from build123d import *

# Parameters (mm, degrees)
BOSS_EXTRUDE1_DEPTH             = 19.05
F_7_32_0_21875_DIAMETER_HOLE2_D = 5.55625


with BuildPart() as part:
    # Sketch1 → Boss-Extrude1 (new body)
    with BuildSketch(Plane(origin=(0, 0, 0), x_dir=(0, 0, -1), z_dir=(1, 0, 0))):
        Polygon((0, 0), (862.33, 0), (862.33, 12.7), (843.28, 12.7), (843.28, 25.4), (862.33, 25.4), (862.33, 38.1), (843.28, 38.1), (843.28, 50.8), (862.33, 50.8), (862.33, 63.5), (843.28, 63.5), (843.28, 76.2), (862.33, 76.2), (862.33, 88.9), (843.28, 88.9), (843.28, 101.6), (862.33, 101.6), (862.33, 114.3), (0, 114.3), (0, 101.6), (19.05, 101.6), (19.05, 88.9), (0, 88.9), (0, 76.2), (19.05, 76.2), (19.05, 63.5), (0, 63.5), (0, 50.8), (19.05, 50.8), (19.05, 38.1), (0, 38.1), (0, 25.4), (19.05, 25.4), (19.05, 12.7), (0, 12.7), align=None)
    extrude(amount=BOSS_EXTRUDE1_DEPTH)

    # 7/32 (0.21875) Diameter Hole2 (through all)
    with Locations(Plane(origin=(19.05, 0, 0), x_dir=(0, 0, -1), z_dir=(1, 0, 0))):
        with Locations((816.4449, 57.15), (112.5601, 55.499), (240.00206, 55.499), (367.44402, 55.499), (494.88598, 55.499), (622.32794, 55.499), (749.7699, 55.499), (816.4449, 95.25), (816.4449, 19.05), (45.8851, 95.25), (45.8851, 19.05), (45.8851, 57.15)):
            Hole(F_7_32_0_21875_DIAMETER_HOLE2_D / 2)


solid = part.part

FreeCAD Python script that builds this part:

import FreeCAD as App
import Part
import Sketcher
Q = App.Units.Quantity

doc = App.newDocument("Part")
body = doc.addObject("PartDesign::Body", "Body")

sketch1 = body.newObject("Sketcher::SketchObject", "Sketch")
sketch1.AttachmentSupport = (doc.getObject("YZ_Plane"), [""])
sketch1.MapMode = "FlatFace"
sketch1.addGeometry(Part.LineSegment(App.Vector(0, 0, 0), App.Vector(0, -862, 0)), False)
sketch1.addGeometry(Part.LineSegment(App.Vector(0, -862, 0), App.Vector(13, -862, 0)), False)
sketch1.addGeometry(Part.LineSegment(App.Vector(13, -862, 0), App.Vector(13, -843, 0)), False)
sketch1.addGeometry(Part.LineSegment(App.Vector(13, -843, 0), App.Vector(25, -843, 0)), False)
sketch1.addGeometry(Part.LineSegment(App.Vector(25, -843, 0), App.Vector(25, -862, 0)), False)
sketch1.addGeometry(Part.LineSegment(App.Vector(25, -862, 0), App.Vector(38, -862, 0)), False)
sketch1.addGeometry(Part.LineSegment(App.Vector(38, -862, 0), App.Vector(38, -843, 0)), False)
sketch1.addGeometry(Part.LineSegment(App.Vector(38, -843, 0), App.Vector(51, -843, 0)), False)
sketch1.addGeometry(Part.LineSegment(App.Vector(51, -843, 0), App.Vector(51, -862, 0)), False)
sketch1.addGeometry(Part.LineSegment(App.Vector(51, -862, 0), App.Vector(64, -862, 0)), False)
sketch1.addGeometry(Part.LineSegment(App.Vector(64, -862, 0), App.Vector(64, -843, 0)), False)
sketch1.addGeometry(Part.LineSegment(App.Vector(64, -843, 0), App.Vector(76, -843, 0)), False)
sketch1.addGeometry(Part.LineSegment(App.Vector(76, -843, 0), App.Vector(76, -862, 0)), False)
sketch1.addGeometry(Part.LineSegment(App.Vector(76, -862, 0), App.Vector(89, -862, 0)), False)
sketch1.addGeometry(Part.LineSegment(App.Vector(89, -862, 0), App.Vector(89, -843, 0)), False)
sketch1.addGeometry(Part.LineSegment(App.Vector(89, -843, 0), App.Vector(102, -843, 0)), False)
sketch1.addGeometry(Part.LineSegment(App.Vector(102, -843, 0), App.Vector(102, -862, 0)), False)
sketch1.addGeometry(Part.LineSegment(App.Vector(102, -862, 0), App.Vector(114, -862, 0)), False)
sketch1.addGeometry(Part.LineSegment(App.Vector(114, -862, 0), App.Vector(114, 0, 0)), False)
sketch1.addGeometry(Part.LineSegment(App.Vector(114, 0, 0), App.Vector(102, 0, 0)), False)
sketch1.addGeometry(Part.LineSegment(App.Vector(102, 0, 0), App.Vector(102, -19, 0)), False)
sketch1.addGeometry(Part.LineSegment(App.Vector(102, -19, 0), App.Vector(89, -19, 0)), False)
sketch1.addGeometry(Part.LineSegment(App.Vector(89, -19, 0), App.Vector(89, 0, 0)), False)
sketch1.addGeometry(Part.LineSegment(App.Vector(89, 0, 0), App.Vector(76, 0, 0)), False)
sketch1.addGeometry(Part.LineSegment(App.Vector(76, 0, 0), App.Vector(76, -19, 0)), False)
sketch1.addGeometry(Part.LineSegment(App.Vector(76, -19, 0), App.Vector(64, -19, 0)), False)
sketch1.addGeometry(Part.LineSegment(App.Vector(64, -19, 0), App.Vector(64, 0, 0)), False)
sketch1.addGeometry(Part.LineSegment(App.Vector(64, 0, 0), App.Vector(51, 0, 0)), False)
sketch1.addGeometry(Part.LineSegment(App.Vector(51, 0, 0), App.Vector(51, -19, 0)), False)
sketch1.addGeometry(Part.LineSegment(App.Vector(51, -19, 0), App.Vector(38, -19, 0)), False)
sketch1.addGeometry(Part.LineSegment(App.Vector(38, -19, 0), App.Vector(38, 0, 0)), False)
sketch1.addGeometry(Part.LineSegment(App.Vector(38, 0, 0), App.Vector(25, 0, 0)), False)
sketch1.addGeometry(Part.LineSegment(App.Vector(25, 0, 0), App.Vector(25, -19, 0)), False)
sketch1.addGeometry(Part.LineSegment(App.Vector(25, -19, 0), App.Vector(13, -19, 0)), False)
sketch1.addGeometry(Part.LineSegment(App.Vector(13, -19, 0), App.Vector(13, 0, 0)), False)
sketch1.addGeometry(Part.LineSegment(App.Vector(13, 0, 0), App.Vector(0, 0, 0)), False)
sketch1.addConstraint(Sketcher.Constraint("Coincident", 0, 2, 1, 1))
sketch1.addConstraint(Sketcher.Constraint("Coincident", 1, 2, 2, 1))
sketch1.addConstraint(Sketcher.Constraint("Coincident", 2, 2, 3, 1))
sketch1.addConstraint(Sketcher.Constraint("Coincident", 3, 2, 4, 1))
sketch1.addConstraint(Sketcher.Constraint("Coincident", 4, 2, 5, 1))
sketch1.addConstraint(Sketcher.Constraint("Coincident", 5, 2, 6, 1))
sketch1.addConstraint(Sketcher.Constraint("Coincident", 6, 2, 7, 1))
sketch1.addConstraint(Sketcher.Constraint("Coincident", 7, 2, 8, 1))
sketch1.addConstraint(Sketcher.Constraint("Coincident", 8, 2, 9, 1))
sketch1.addConstraint(Sketcher.Constraint("Coincident", 9, 2, 10, 1))
sketch1.addConstraint(Sketcher.Constraint("Coincident", 10, 2, 11, 1))
sketch1.addConstraint(Sketcher.Constraint("Coincident", 11, 2, 12, 1))
sketch1.addConstraint(Sketcher.Constraint("Coincident", 12, 2, 13, 1))
sketch1.addConstraint(Sketcher.Constraint("Coincident", 13, 2, 14, 1))
sketch1.addConstraint(Sketcher.Constraint("Coincident", 14, 2, 15, 1))
sketch1.addConstraint(Sketcher.Constraint("Coincident", 15, 2, 16, 1))
sketch1.addConstraint(Sketcher.Constraint("Coincident", 16, 2, 17, 1))
sketch1.addConstraint(Sketcher.Constraint("Coincident", 17, 2, 18, 1))
sketch1.addConstraint(Sketcher.Constraint("Coincident", 18, 2, 19, 1))
sketch1.addConstraint(Sketcher.Constraint("Coincident", 19, 2, 20, 1))
sketch1.addConstraint(Sketcher.Constraint("Coincident", 20, 2, 21, 1))
sketch1.addConstraint(Sketcher.Constraint("Coincident", 21, 2, 22, 1))
sketch1.addConstraint(Sketcher.Constraint("Coincident", 22, 2, 23, 1))
sketch1.addConstraint(Sketcher.Constraint("Coincident", 23, 2, 24, 1))
sketch1.addConstraint(Sketcher.Constraint("Coincident", 24, 2, 25, 1))
sketch1.addConstraint(Sketcher.Constraint("Coincident", 25, 2, 26, 1))
sketch1.addConstraint(Sketcher.Constraint("Coincident", 26, 2, 27, 1))
sketch1.addConstraint(Sketcher.Constraint("Coincident", 27, 2, 28, 1))
sketch1.addConstraint(Sketcher.Constraint("Coincident", 28, 2, 29, 1))
sketch1.addConstraint(Sketcher.Constraint("Coincident", 29, 2, 30, 1))
sketch1.addConstraint(Sketcher.Constraint("Coincident", 30, 2, 31, 1))
sketch1.addConstraint(Sketcher.Constraint("Coincident", 31, 2, 32, 1))
sketch1.addConstraint(Sketcher.Constraint("Coincident", 32, 2, 33, 1))
sketch1.addConstraint(Sketcher.Constraint("Coincident", 33, 2, 34, 1))
sketch1.addConstraint(Sketcher.Constraint("Coincident", 34, 2, 35, 1))
sketch1.addConstraint(Sketcher.Constraint("Coincident", 35, 2, 0, 1))
sketch1.addConstraint(Sketcher.Constraint("Vertical", 0))
sketch1.addConstraint(Sketcher.Constraint("Horizontal", 1))
sketch1.addConstraint(Sketcher.Constraint("Vertical", 2))
sketch1.addConstraint(Sketcher.Constraint("Horizontal", 3))
sketch1.addConstraint(Sketcher.Constraint("Vertical", 4))
sketch1.addConstraint(Sketcher.Constraint("Horizontal", 5))
sketch1.addConstraint(Sketcher.Constraint("Vertical", 6))
sketch1.addConstraint(Sketcher.Constraint("Horizontal", 7))
sketch1.addConstraint(Sketcher.Constraint("Vertical", 8))
sketch1.addConstraint(Sketcher.Constraint("Horizontal", 9))
sketch1.addConstraint(Sketcher.Constraint("Vertical", 10))
sketch1.addConstraint(Sketcher.Constraint("Horizontal", 11))
sketch1.addConstraint(Sketcher.Constraint("Vertical", 12))
sketch1.addConstraint(Sketcher.Constraint("Horizontal", 13))
sketch1.addConstraint(Sketcher.Constraint("Vertical", 14))
sketch1.addConstraint(Sketcher.Constraint("Horizontal", 15))
sketch1.addConstraint(Sketcher.Constraint("Vertical", 16))
sketch1.addConstraint(Sketcher.Constraint("Horizontal", 17))
sketch1.addConstraint(Sketcher.Constraint("Vertical", 18))
sketch1.addConstraint(Sketcher.Constraint("Horizontal", 19))
sketch1.addConstraint(Sketcher.Constraint("Vertical", 20))
sketch1.addConstraint(Sketcher.Constraint("Horizontal", 21))
sketch1.addConstraint(Sketcher.Constraint("Vertical", 22))
sketch1.addConstraint(Sketcher.Constraint("Horizontal", 23))
sketch1.addConstraint(Sketcher.Constraint("Vertical", 24))
sketch1.addConstraint(Sketcher.Constraint("Horizontal", 25))
sketch1.addConstraint(Sketcher.Constraint("Vertical", 26))
sketch1.addConstraint(Sketcher.Constraint("Horizontal", 27))
sketch1.addConstraint(Sketcher.Constraint("Vertical", 28))
sketch1.addConstraint(Sketcher.Constraint("Horizontal", 29))
sketch1.addConstraint(Sketcher.Constraint("Vertical", 30))
sketch1.addConstraint(Sketcher.Constraint("Horizontal", 31))
sketch1.addConstraint(Sketcher.Constraint("Vertical", 32))
sketch1.addConstraint(Sketcher.Constraint("Horizontal", 33))
sketch1.addConstraint(Sketcher.Constraint("Vertical", 34))
sketch1.addConstraint(Sketcher.Constraint("Horizontal", 35))
sketch1.addConstraint(Sketcher.Constraint("Coincident", 35, 2, -1, 1))
sketch1.addConstraint(Sketcher.Constraint("PointOnObject", 18, 2, -1))
sketch1.addConstraint(Sketcher.Constraint("PointOnObject", 22, 2, -1))
sketch1.addConstraint(Sketcher.Constraint("PointOnObject", 26, 2, -1))
sketch1.addConstraint(Sketcher.Constraint("PointOnObject", 30, 2, -1))
sketch1.addConstraint(Sketcher.Constraint("Horizontal", 1, 2, 4, 2))
sketch1.addConstraint(Sketcher.Constraint("Horizontal", 3, 2, 6, 2))
sketch1.addConstraint(Sketcher.Constraint("Horizontal", 5, 2, 8, 2))
sketch1.addConstraint(Sketcher.Constraint("Horizontal", 7, 2, 10, 2))
sketch1.addConstraint(Sketcher.Constraint("Horizontal", 9, 2, 12, 2))
sketch1.addConstraint(Sketcher.Constraint("Horizontal", 11, 2, 14, 2))
sketch1.addConstraint(Sketcher.Constraint("Horizontal", 13, 2, 16, 2))
sketch1.addConstraint(Sketcher.Constraint("Horizontal", 21, 2, 24, 2))
sketch1.addConstraint(Sketcher.Constraint("Horizontal", 25, 2, 28, 2))
sketch1.addConstraint(Sketcher.Constraint("Horizontal", 29, 2, 32, 2))
sketch1.addConstraint(Sketcher.Constraint("Vertical", 16, 2, 19, 2))
sketch1.addConstraint(Sketcher.Constraint("Vertical", 14, 2, 21, 2))
sketch1.addConstraint(Sketcher.Constraint("Vertical", 12, 2, 23, 2))
sketch1.addConstraint(Sketcher.Constraint("Vertical", 10, 2, 25, 2))
sketch1.addConstraint(Sketcher.Constraint("Vertical", 8, 2, 27, 2))
sketch1.addConstraint(Sketcher.Constraint("Vertical", 6, 2, 29, 2))
sketch1.addConstraint(Sketcher.Constraint("Vertical", 4, 2, 31, 2))
sketch1.addConstraint(Sketcher.Constraint("Vertical", 2, 2, 33, 2))
sketch1.addConstraint(Sketcher.Constraint("Equal", 1, 3))
sketch1.addConstraint(Sketcher.Constraint("Equal", 3, 5))
sketch1.addConstraint(Sketcher.Constraint("Equal", 5, 7))
sketch1.addConstraint(Sketcher.Constraint("Equal", 7, 9))
sketch1.addConstraint(Sketcher.Constraint("Equal", 9, 11))
sketch1.addConstraint(Sketcher.Constraint("Equal", 11, 13))
sketch1.addConstraint(Sketcher.Constraint("Equal", 13, 15))
sketch1.addConstraint(Sketcher.Constraint("Equal", 15, 17))
sketch1.addConstraint(Sketcher.Constraint("Equal", 16, 20))
sketch1.addConstraint(Sketcher.Constraint("DistanceX", 1, 1, 1, 2, Q("0.5 in")))
sketch1.addConstraint(Sketcher.Constraint("DistanceY", 0, 2, 0, 1, Q("33.95 in")))
sketch1.addConstraint(Sketcher.Constraint("DistanceY", 2, 1, 2, 2, Q("0.75 in")))
pad1 = body.newObject("PartDesign::Pad", "Pad")
pad1.Profile = sketch1
pad1.Length = Q("0.75 in")

sketch2 = body.newObject("Sketcher::SketchObject", "Sketch001")
sketch2.AttachmentSupport = (doc.getObject("YZ_Plane"), [""])
sketch2.MapMode = "FlatFace"
sketch2.AttachmentOffset = App.Placement(App.Vector(0, 0, 0.75 * 25.4), App.Rotation())
sketch2.addGeometry(Part.Circle(App.Vector(57.1, -816.4, 0), App.Vector(0, 0, 1), 2.8), False)
sketch2.addGeometry(Part.Circle(App.Vector(55.5, -112.6, 0), App.Vector(0, 0, 1), 2.8), False)
sketch2.addGeometry(Part.Circle(App.Vector(55.5, -240, 0), App.Vector(0, 0, 1), 2.8), False)
sketch2.addGeometry(Part.Circle(App.Vector(55.5, -367.4, 0), App.Vector(0, 0, 1), 2.8), False)
sketch2.addGeometry(Part.Circle(App.Vector(55.5, -494.9, 0), App.Vector(0, 0, 1), 2.8), False)
sketch2.addGeometry(Part.Circle(App.Vector(55.5, -622.3, 0), App.Vector(0, 0, 1), 2.8), False)
sketch2.addGeometry(Part.Circle(App.Vector(55.5, -749.8, 0), App.Vector(0, 0, 1), 2.8), False)
sketch2.addGeometry(Part.Circle(App.Vector(95.2, -816.4, 0), App.Vector(0, 0, 1), 2.8), False)
sketch2.addGeometry(Part.Circle(App.Vector(19.1, -816.4, 0), App.Vector(0, 0, 1), 2.8), False)
sketch2.addGeometry(Part.Circle(App.Vector(95.2, -45.9, 0), App.Vector(0, 0, 1), 2.8), False)
sketch2.addGeometry(Part.Circle(App.Vector(19.1, -45.9, 0), App.Vector(0, 0, 1), 2.8), False)
sketch2.addGeometry(Part.Circle(App.Vector(57.1, -45.9, 0), App.Vector(0, 0, 1), 2.8), False)
sketch2.addConstraint(Sketcher.Constraint("Equal", 0, 1))
sketch2.addConstraint(Sketcher.Constraint("Equal", 1, 2))
sketch2.addConstraint(Sketcher.Constraint("Equal", 2, 3))
sketch2.addConstraint(Sketcher.Constraint("Equal", 3, 4))
sketch2.addConstraint(Sketcher.Constraint("Equal", 4, 5))
sketch2.addConstraint(Sketcher.Constraint("Equal", 5, 6))
sketch2.addConstraint(Sketcher.Constraint("Equal", 6, 7))
sketch2.addConstraint(Sketcher.Constraint("Equal", 7, 8))
sketch2.addConstraint(Sketcher.Constraint("Equal", 8, 9))
sketch2.addConstraint(Sketcher.Constraint("Equal", 9, 10))
sketch2.addConstraint(Sketcher.Constraint("Equal", 10, 11))
sketch2.addConstraint(Sketcher.Constraint("Horizontal", 0, 3, 7, 3))
sketch2.addConstraint(Sketcher.Constraint("Horizontal", 7, 3, 8, 3))
sketch2.addConstraint(Sketcher.Constraint("Horizontal", 9, 3, 10, 3))
sketch2.addConstraint(Sketcher.Constraint("Horizontal", 10, 3, 11, 3))
sketch2.addConstraint(Sketcher.Constraint("Vertical", 1, 3, 2, 3))
sketch2.addConstraint(Sketcher.Constraint("Vertical", 2, 3, 3, 3))
sketch2.addConstraint(Sketcher.Constraint("Vertical", 3, 3, 4, 3))
sketch2.addConstraint(Sketcher.Constraint("Vertical", 4, 3, 5, 3))
sketch2.addConstraint(Sketcher.Constraint("Vertical", 5, 3, 6, 3))
sketch2.addConstraint(Sketcher.Constraint("Vertical", 7, 3, 9, 3))
sketch2.addConstraint(Sketcher.Constraint("Vertical", 8, 3, 10, 3))
sketch2.addConstraint(Sketcher.Constraint("Vertical", 0, 3, 11, 3))
sketch2.addConstraint(Sketcher.Constraint("Diameter", 0, Q("0.21875 in")))
sketch2.addConstraint(Sketcher.Constraint("DistanceX", 8, 3, 7, 3, Q("3 in")))
sketch2.addConstraint(Sketcher.Constraint("DistanceX", 0, 3, 7, 3, Q("1.5 in")))
sketch2.addConstraint(Sketcher.Constraint("DistanceX", -1, 1, 0, 3, Q("2.25 in")))
sketch2.addConstraint(Sketcher.Constraint("DistanceX", -1, 1, 1, 3, Q("2.185 in")))
sketch2.addConstraint(Sketcher.Constraint("DistanceY", 0, 3, 1, 3, Q("27.712 in")))
sketch2.addConstraint(Sketcher.Constraint("DistanceY", 0, 3, 6, 3, Q("2.625 in")))
sketch2.addConstraint(Sketcher.Constraint("DistanceY", 1, 3, 9, 3, Q("2.625 in")))
sketch2.addConstraint(Sketcher.Constraint("DistanceY", 0, 3, -1, 1, Q("32.1435 in")))
sketch2.addConstraint(Sketcher.Constraint("DistanceY", 2, 3, -1, 1, Q("9.4489 in")))
sketch2.addConstraint(Sketcher.Constraint("DistanceY", 3, 3, -1, 1, Q("14.4663 in")))
sketch2.addConstraint(Sketcher.Constraint("DistanceY", 4, 3, -1, 1, Q("19.4837 in")))
sketch2.addConstraint(Sketcher.Constraint("DistanceY", 5, 3, -1, 1, Q("24.5011 in")))
doc.recompute()
hole = body.newObject("PartDesign::Hole", "Hole")
hole.Profile = sketch2
hole.ThreadType = "None"
hole.Diameter = Q("0.21875 in")
hole.DepthType = "ThroughAll"

doc.recompute()
